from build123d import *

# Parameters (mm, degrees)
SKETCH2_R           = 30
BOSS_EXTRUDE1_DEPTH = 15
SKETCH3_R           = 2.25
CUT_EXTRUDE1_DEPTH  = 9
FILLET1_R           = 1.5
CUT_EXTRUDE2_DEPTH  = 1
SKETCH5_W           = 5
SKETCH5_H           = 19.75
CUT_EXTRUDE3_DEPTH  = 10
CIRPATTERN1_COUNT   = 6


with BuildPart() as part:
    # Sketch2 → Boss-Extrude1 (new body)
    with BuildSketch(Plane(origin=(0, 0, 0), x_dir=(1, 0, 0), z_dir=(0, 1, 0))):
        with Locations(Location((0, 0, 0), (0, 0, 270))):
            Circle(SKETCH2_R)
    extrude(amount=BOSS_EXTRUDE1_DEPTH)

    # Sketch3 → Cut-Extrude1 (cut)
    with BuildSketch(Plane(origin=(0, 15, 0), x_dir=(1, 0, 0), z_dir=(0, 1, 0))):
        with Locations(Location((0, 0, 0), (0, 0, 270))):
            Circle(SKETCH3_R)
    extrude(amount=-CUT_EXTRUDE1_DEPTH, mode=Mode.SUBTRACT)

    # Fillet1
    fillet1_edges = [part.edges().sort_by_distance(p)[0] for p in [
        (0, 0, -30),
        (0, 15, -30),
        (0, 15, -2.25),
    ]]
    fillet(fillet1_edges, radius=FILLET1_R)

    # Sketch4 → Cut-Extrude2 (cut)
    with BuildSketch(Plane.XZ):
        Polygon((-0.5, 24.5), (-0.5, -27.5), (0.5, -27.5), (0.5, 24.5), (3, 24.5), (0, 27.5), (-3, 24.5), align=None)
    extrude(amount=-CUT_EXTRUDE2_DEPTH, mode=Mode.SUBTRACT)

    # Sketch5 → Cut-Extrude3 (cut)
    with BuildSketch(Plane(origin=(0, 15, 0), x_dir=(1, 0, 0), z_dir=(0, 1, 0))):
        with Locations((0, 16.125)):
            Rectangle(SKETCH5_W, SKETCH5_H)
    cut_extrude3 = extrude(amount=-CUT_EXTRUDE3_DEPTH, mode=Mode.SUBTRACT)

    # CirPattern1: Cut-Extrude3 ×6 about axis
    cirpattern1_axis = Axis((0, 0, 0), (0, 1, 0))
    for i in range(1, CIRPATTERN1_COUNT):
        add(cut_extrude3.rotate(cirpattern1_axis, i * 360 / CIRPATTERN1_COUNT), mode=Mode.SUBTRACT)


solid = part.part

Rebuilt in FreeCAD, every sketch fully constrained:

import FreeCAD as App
import Part
import Sketcher

V = App.Vector
Q = App.Units.Quantity


def edges_at(feature, points):
    """Names of the edges that pass closest to the given points."""
    edges = feature.Shape.Edges
    near = lambda p: min(range(len(edges)), key=lambda i: edges[i].distToShape(Part.Vertex(*p))[0])
    return sorted({f"Edge{near(p) + 1}" for p in points})

doc = App.newDocument("Part")
params = doc.addObject("Spreadsheet::Sheet", "Params")
for row, (alias, value) in enumerate([
    ("sketch1_diameter", "60 mm"),
    ("pad1_length", "15 mm"),
    ("sketch2_diameter", "4.5 mm"),
    ("pocket1_length", "9 mm"),
    ("fillet_radius", "1.5 mm"),
    ("sketch3_width", "1 mm"),
    ("sketch3_height", "52 mm"),
    ("sketch3_width2", "2.5 mm"),
    ("pocket2_length", "1 mm"),
    ("sketch4_width", "5 mm"),
    ("sketch4_height", "19.75 mm"),
    ("pocket3_length", "10 mm"),
], start=1):
    params.set(f"A{row}", alias)
    params.set(f"B{row}", "=" + value)
    params.setAlias(f"B{row}", alias)

body = doc.addObject("PartDesign::Body", "Body")

# Sketch on XZ plane
sketch1 = doc.addObject("Sketcher::SketchObject", "Sketch")
body.addObject(sketch1)
sketch1.AttachmentSupport = (doc.XZ_Plane, [""])
sketch1.MapMode = "FlatFace"
sketch1.addGeometry(Part.Circle(V(0, 0, 0), V(0, 0, 1), 30), False)
sketch1.addConstraint([
    Sketcher.Constraint("Coincident", 0, 3, -1, 1),
    Sketcher.Constraint("Diameter", 0, Q("60 mm")),
])
sketch1.setExpression("Constraints[1]", "Params.sketch1_diameter")
pad1 = doc.addObject("PartDesign::Pad", "Pad")
body.addObject(pad1)
pad1.Profile = sketch1
pad1.setExpression("Length", "Params.pad1_length")
pad1.Reversed = True

# Sketch on XZ plane
sketch2 = doc.addObject("Sketcher::SketchObject", "Sketch001")
body.addObject(sketch2)
sketch2.AttachmentSupport = (doc.XZ_Plane, [""])
sketch2.MapMode = "FlatFace"
sketch2.AttachmentOffset = App.Placement(V(0, 0, -15), App.Rotation())
sketch2.addGeometry(Part.Circle(V(0, 0, 0), V(0, 0, 1), 2.2), False)
sketch2.addConstraint([
    Sketcher.Constraint("Coincident", 0, 3, -1, 1),
    Sketcher.Constraint("Diameter", 0, Q("4.5 mm")),
])
sketch2.setExpression("Constraints[1]", "Params.sketch2_diameter")
pocket1 = doc.addObject("PartDesign::Pocket", "Pocket")
body.addObject(pocket1)
pocket1.Profile = sketch2
pocket1.setExpression("Length", "Params.pocket1_length")
pocket1.Reversed = True
doc.recompute()

fillet = doc.addObject("PartDesign::Fillet", "Fillet")
body.addObject(fillet)
fillet.Base = (pocket1, edges_at(pocket1, [(0, 0, -30), (0, 15, -30), (0, 15, -2.25)]))
fillet.setExpression("Radius", "Params.fillet_radius")

# Sketch on XZ plane
sketch3 = doc.addObject("Sketcher::SketchObject", "Sketch002")
body.addObject(sketch3)
sketch3.AttachmentSupport = (doc.XZ_Plane, [""])
sketch3.MapMode = "FlatFace"
sketch3.addGeometry([
    Part.LineSegment(V(-0.5, 24.5, 0), V(-0.5, -27.5, 0)),  # 0
    Part.LineSegment(V(-0.5, -27.5, 0), V(0.5, -27.5, 0)),  # 1
    Part.LineSegment(V(0.5, -27.5, 0), V(0.5, 24.5, 0)),  # 2
    Part.LineSegment(V(0.5, 24.5, 0), V(3, 24.5, 0)),  # 3
    Part.LineSegment(V(3, 24.5, 0), V(0, 27.5, 0)),  # 4
    Part.LineSegment(V(0, 27.5, 0), V(-3, 24.5, 0)),  # 5
    Part.LineSegment(V(-3, 24.5, 0), V(-0.5, 24.5, 0)),  # 6
], False)
sketch3.addConstraint([
    Sketcher.Constraint("Coincident", 0, 2, 1, 1),
    Sketcher.Constraint("Coincident", 1, 2, 2, 1),
    Sketcher.Constraint("Coincident", 2, 2, 3, 1),
    Sketcher.Constraint("Coincident", 3, 2, 4, 1),
    Sketcher.Constraint("Coincident", 4, 2, 5, 1),
    Sketcher.Constraint("Coincident", 5, 2, 6, 1),
    Sketcher.Constraint("Coincident", 6, 2, 0, 1),
    Sketcher.Constraint("Vertical", 0),
    Sketcher.Constraint("Horizontal", 1),
    Sketcher.Constraint("Vertical", 2),
    Sketcher.Constraint("Horizontal", 3),
    Sketcher.Constraint("Horizontal", 6),
    Sketcher.Constraint("Symmetric", 3, 2, 5, 2, -2),
    Sketcher.Constraint("PointOnObject", 4, 2, -2),
    Sketcher.Constraint("Perpendicular", 4, 5),
    Sketcher.Constraint("Equal", 3, 6),
    Sketcher.Constraint("DistanceX", 1, 1, 1, 2, Q("1 mm")),
    Sketcher.Constraint("DistanceY", 0, 2, 0, 1, Q("52 mm")),
    Sketcher.Constraint("DistanceX", 3, 1, 3, 2, Q("2.5 mm")),
    Sketcher.Constraint("DistanceY", 0, 2, -1, 1, Q("27.5 mm")),
])
sketch3.setExpression("Constraints[16]", "Params.sketch3_width")
sketch3.setExpression("Constraints[17]", "Params.sketch3_height")
sketch3.setExpression("Constraints[18]", "Params.sketch3_width2")
pocket2 = doc.addObject("PartDesign::Pocket", "Pocket001")
body.addObject(pocket2)
pocket2.Profile = sketch3
pocket2.setExpression("Length", "Params.pocket2_length")

# Sketch on XZ plane
sketch4 = doc.addObject("Sketcher::SketchObject", "Sketch003")
body.addObject(sketch4)
sketch4.AttachmentSupport = (doc.XZ_Plane, [""])
sketch4.MapMode = "FlatFace"
sketch4.AttachmentOffset = App.Placement(V(0, 0, -15), App.Rotation())
sketch4.addGeometry([
    Part.LineSegment(V(-2, -26, 0), V(-2, -6, 0)),
    Part.LineSegment(V(-2, -6, 0), V(2, -6, 0)),
    Part.LineSegment(V(2, -6, 0), V(2, -26, 0)),
    Part.LineSegment(V(2, -26, 0), V(-2, -26, 0)),
], False)
sketch4.addConstraint([
    Sketcher.Constraint("Coincident", 0, 2, 1, 1),
    Sketcher.Constraint("Coincident", 1, 2, 2, 1),
    Sketcher.Constraint("Coincident", 2, 2, 3, 1),
    Sketcher.Constraint("Coincident", 3, 2, 0, 1),
    Sketcher.Constraint("Vertical", 0),
    Sketcher.Constraint("Horizontal", 1),
    Sketcher.Constraint("Vertical", 2),
    Sketcher.Constraint("Horizontal", 3),
    Sketcher.Constraint("DistanceX", 1, 1, 1, 2, Q("5 mm")),
    Sketcher.Constraint("DistanceY", 2, 2, -1, 1, Q("26 mm")),
    Sketcher.Constraint("DistanceY", 0, 1, 0, 2, Q("19.75 mm")),
    Sketcher.Constraint("DistanceX", 0, 2, -1, 1, Q("2.5 mm")),
])
sketch4.setExpression("Constraints[8]", "Params.sketch4_width")
sketch4.setExpression("Constraints[10]", "Params.sketch4_height")
pocket3 = doc.addObject("PartDesign::Pocket", "Pocket002")
body.addObject(pocket3)
pocket3.Profile = sketch4
pocket3.setExpression("Length", "Params.pocket3_length")
pocket3.Reversed = True
doc.recompute()

polarpattern = doc.addObject("PartDesign::PolarPattern", "PolarPattern")
body.addObject(polarpattern)
polarpattern.Originals = [pocket3]
polarpattern.Axis = (doc.Y_Axis, [""])
polarpattern.Angle = 360
polarpattern.Occurrences = 6
body.Tip = polarpattern

doc.recompute()
